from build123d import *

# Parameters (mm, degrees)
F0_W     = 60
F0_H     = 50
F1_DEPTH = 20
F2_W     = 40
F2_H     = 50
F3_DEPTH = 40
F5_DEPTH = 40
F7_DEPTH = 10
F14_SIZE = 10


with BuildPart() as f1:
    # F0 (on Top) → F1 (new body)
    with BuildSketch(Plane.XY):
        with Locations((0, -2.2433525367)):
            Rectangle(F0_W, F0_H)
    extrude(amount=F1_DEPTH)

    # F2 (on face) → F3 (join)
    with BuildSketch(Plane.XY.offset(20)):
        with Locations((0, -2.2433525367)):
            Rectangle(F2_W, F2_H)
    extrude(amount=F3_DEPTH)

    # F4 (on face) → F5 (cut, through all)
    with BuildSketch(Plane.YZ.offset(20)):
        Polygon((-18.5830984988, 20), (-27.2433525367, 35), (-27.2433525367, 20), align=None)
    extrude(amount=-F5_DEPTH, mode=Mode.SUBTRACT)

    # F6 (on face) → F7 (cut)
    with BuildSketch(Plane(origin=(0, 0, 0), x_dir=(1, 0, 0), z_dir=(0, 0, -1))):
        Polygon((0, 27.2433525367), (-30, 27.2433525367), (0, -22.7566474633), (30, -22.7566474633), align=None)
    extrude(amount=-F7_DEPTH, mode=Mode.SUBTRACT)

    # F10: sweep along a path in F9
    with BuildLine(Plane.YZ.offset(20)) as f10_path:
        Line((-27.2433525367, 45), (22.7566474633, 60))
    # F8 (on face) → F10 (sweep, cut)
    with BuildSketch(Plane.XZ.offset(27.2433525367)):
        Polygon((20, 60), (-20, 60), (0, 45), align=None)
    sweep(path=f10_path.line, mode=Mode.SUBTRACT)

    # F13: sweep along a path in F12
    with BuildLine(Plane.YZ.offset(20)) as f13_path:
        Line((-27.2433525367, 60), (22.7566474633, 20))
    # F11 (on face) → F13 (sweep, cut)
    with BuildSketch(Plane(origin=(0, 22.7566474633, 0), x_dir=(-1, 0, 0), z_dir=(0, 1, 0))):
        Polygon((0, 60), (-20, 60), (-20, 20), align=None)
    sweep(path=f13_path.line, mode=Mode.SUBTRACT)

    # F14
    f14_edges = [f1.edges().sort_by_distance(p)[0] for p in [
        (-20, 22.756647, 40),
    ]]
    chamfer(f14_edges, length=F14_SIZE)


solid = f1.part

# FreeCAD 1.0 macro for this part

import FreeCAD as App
import Part
import Sketcher
Q = App.Units.Quantity


def edges_at(feature, points):
    """Names of the edges that pass closest to the given points."""
    edges = feature.Shape.Edges
    near = lambda p: min(range(len(edges)), key=lambda i: edges[i].distToShape(Part.Vertex(*p))[0])
    return sorted({f"Edge{near(p) + 1}" for p in points})


def add_polygon(sketch, points):
    """Adds a closed chain of lines whose ends are joined by coincident constraints."""
    first, n = sketch.GeometryCount, len(points)
    for a, b in zip(points, points[1:] + points[:1]):
        sketch.addGeometry(Part.LineSegment(App.Vector(*a, 0), App.Vector(*b, 0)), False)
    for i in range(n):
        sketch.addConstraint(Sketcher.Constraint("Coincident", first + i, 2, first + (i + 1) % n, 1))

doc = App.newDocument("Part")
body = doc.addObject("PartDesign::Body", "Body")

sketch1 = body.newObject("Sketcher::SketchObject", "Sketch")
sketch1.AttachmentSupport = (doc.getObject("XY_Plane"), [""])
sketch1.MapMode = "FlatFace"
add_polygon(sketch1, [(-30, 22.756647), (-30, -27.243353), (30, -27.243353), (30, 22.756647)])
sketch1.addConstraint(Sketcher.Constraint("Vertical", 0))
sketch1.addConstraint(Sketcher.Constraint("Horizontal", 1))
sketch1.addConstraint(Sketcher.Constraint("Vertical", 2))
sketch1.addConstraint(Sketcher.Constraint("Horizontal", 3))
sketch1.addConstraint(Sketcher.Constraint("DistanceX", 1, 1, 1, 2, 60.0))
sketch1.addConstraint(Sketcher.Constraint("DistanceY", 0, 2, 0, 1, 50.0))
sketch1.addConstraint(Sketcher.Constraint("DistanceX", 0, 2, -1, 1, 30.0))
sketch1.addConstraint(Sketcher.Constraint("DistanceY", 0, 2, -1, 1, 27.243353))
pad1 = body.newObject("PartDesign::Pad", "Pad")
pad1.Profile = sketch1
pad1.Length = 20

sketch2 = body.newObject("Sketcher::SketchObject", "Sketch001")
sketch2.AttachmentSupport = (doc.getObject("XY_Plane"), [""])
sketch2.MapMode = "FlatFace"
sketch2.AttachmentOffset = App.Placement(App.Vector(0, 0, 20), App.Rotation())
add_polygon(sketch2, [(-20, 22.756647), (-20, -27.243353), (20, -27.243353), (20, 22.756647)])
sketch2.addConstraint(Sketcher.Constraint("Vertical", 0))
sketch2.addConstraint(Sketcher.Constraint("Horizontal", 1))
sketch2.addConstraint(Sketcher.Constraint("Vertical", 2))
sketch2.addConstraint(Sketcher.Constraint("Horizontal", 3))
sketch2.addConstraint(Sketcher.Constraint("DistanceX", 1, 1, 1, 2, 40.0))
sketch2.addConstraint(Sketcher.Constraint("DistanceY", 0, 2, 0, 1, 50.0))
sketch2.addConstraint(Sketcher.Constraint("DistanceX", 0, 2, -1, 1, 20.0))
sketch2.addConstraint(Sketcher.Constraint("DistanceY", 0, 2, -1, 1, 27.243353))
pad2 = body.newObject("PartDesign::Pad", "Pad001")
pad2.Profile = sketch2
pad2.Length = 40

sketch3 = body.newObject("Sketcher::SketchObject", "Sketch002")
sketch3.AttachmentSupport = (doc.getObject("YZ_Plane"), [""])
sketch3.MapMode = "FlatFace"
sketch3.AttachmentOffset = App.Placement(App.Vector(0, 0, 20), App.Rotation())
add_polygon(sketch3, [(-18.583098, 20), (-27.243353, 35), (-27.243353, 20)])
sketch3.addConstraint(Sketcher.Constraint("Vertical", 1))
sketch3.addConstraint(Sketcher.Constraint("Horizontal", 2))
sketch3.addConstraint(Sketcher.Constraint("DistanceY", 1, 2, 1, 1, 15.0))
sketch3.addConstraint(Sketcher.Constraint("Angle", 0, Q("120 deg")))
sketch3.addConstraint(Sketcher.Constraint("DistanceY", -1, 1, 0, 2, 35.0))
sketch3.addConstraint(Sketcher.Constraint("DistanceX", 2, 2, -1, 1, 18.583098))
pocket1 = body.newObject("PartDesign::Pocket", "Pocket")
pocket1.Profile = sketch3
pocket1.Type = "ThroughAll"

sketch4 = body.newObject("Sketcher::SketchObject", "Sketch003")
sketch4.AttachmentSupport = (doc.getObject("XY_Plane"), [""])
sketch4.MapMode = "FlatFace"
add_polygon(sketch4, [(0, -27.243353), (-30, -27.243353), (0, 22.756647), (30, 22.756647)])
sketch4.addConstraint(Sketcher.Constraint("Horizontal", 0))
sketch4.addConstraint(Sketcher.Constraint("Horizontal", 2))
sketch4.addConstraint(Sketcher.Constraint("PointOnObject", 1, 2, -2))
sketch4.addConstraint(Sketcher.Constraint("PointOnObject", 3, 2, -2))
sketch4.addConstraint(Sketcher.Constraint("Parallel", 1, 3))
sketch4.addConstraint(Sketcher.Constraint("DistanceX", 0, 2, 0, 1, 30.0))
sketch4.addConstraint(Sketcher.Constraint("DistanceY", 0, 2, 1, 2, 50.0))
sketch4.addConstraint(Sketcher.Constraint("DistanceY", 0, 2, -1, 1, 27.243353))
pocket2 = body.newObject("PartDesign::Pocket", "Pocket001")
pocket2.Profile = sketch4
pocket2.Length = 10
pocket2.Reversed = True

sketch5 = body.newObject("Sketcher::SketchObject", "Sketch004")
sketch5.AttachmentSupport = (doc.getObject("XZ_Plane"), [""])
sketch5.MapMode = "FlatFace"
sketch5.AttachmentOffset = App.Placement(App.Vector(0, 0, 27.243353), App.Rotation())
add_polygon(sketch5, [(20, 60), (-20, 60), (0, 45)])
sketch5.addConstraint(Sketcher.Constraint("Horizontal", 0))
sketch5.addConstraint(Sketcher.Constraint("PointOnObject", 1, 2, -2))
sketch5.addConstraint(Sketcher.Constraint("Equal", 1, 2))
sketch5.addConstraint(Sketcher.Constraint("DistanceX", 0, 2, 0, 1, 40.0))
sketch5.addConstraint(Sketcher.Constraint("Distance", 1, 25.0))
sketch5.addConstraint(Sketcher.Constraint("DistanceY", -1, 1, 0, 2, 60.0))

sketch6 = body.newObject("Sketcher::SketchObject", "Sketch005")
sketch6.Placement = App.Placement(App.Vector(0, -14.634772, 48.782574), App.Rotation(App.Vector(0, 0.957826285, 0.287347886), App.Vector(1, 0, 0), App.Vector(0, 0.287347886, -0.957826285), "ZXY"))
sketch6.addGeometry(Part.LineSegment(App.Vector(-13.163744, 20, 0), App.Vector(39.037788, 20, 0)), False)
sketch6.addConstraint(Sketcher.Constraint("Horizontal", 0))
sketch6.addConstraint(Sketcher.Constraint("DistanceY", -1, 1, 0, 1, 20.0))
sketch6.addConstraint(Sketcher.Constraint("DistanceX", 0, 1, 0, 2, 52.201533))
sketch6.addConstraint(Sketcher.Constraint("DistanceX", -1, 1, 0, 2, 39.037788))
doc.recompute()

subtractivepipe = body.newObject("PartDesign::SubtractivePipe", "SubtractivePipe")
subtractivepipe.Profile = sketch5
subtractivepipe.Spine = (sketch6, ["Edge1"])

sketch7 = body.newObject("Sketcher::SketchObject", "Sketch006")
sketch7.AttachmentSupport = (doc.getObject("XZ_Plane"), [""])
sketch7.MapMode = "FlatFace"
sketch7.AttachmentOffset = App.Placement(App.Vector(0, 0, -22.756647), App.Rotation())
add_polygon(sketch7, [(0, 60), (20, 60), (20, 20)])
sketch7.addConstraint(Sketcher.Constraint("Horizontal", 0))
sketch7.addConstraint(Sketcher.Constraint("Vertical", 1))
sketch7.addConstraint(Sketcher.Constraint("PointOnObject", 2, 2, -2))
sketch7.addConstraint(Sketcher.Constraint("DistanceX", 0, 1, 0, 2, 20.0))
sketch7.addConstraint(Sketcher.Constraint("DistanceY", 1, 2, 1, 1, 40.0))
sketch7.addConstraint(Sketcher.Constraint("DistanceY", -1, 1, 0, 2, 60.0))

sketch8 = body.newObject("Sketcher::SketchObject", "Sketch007")
sketch8.Placement = App.Placement(App.Vector(0, 18.63674, 23.295926), App.Rotation(App.Vector(0, -0.780868809, 0.624695048), App.Vector(1, 0, 0), App.Vector(0, 0.624695048, 0.780868809), "ZXY"))
sketch8.addGeometry(Part.LineSegment(App.Vector(58.755187, 20, 0), App.Vector(-5.276055, 20, 0)), False)
sketch8.addConstraint(Sketcher.Constraint("Horizontal", 0))
sketch8.addConstraint(Sketcher.Constraint("DistanceY", -1, 1, 0, 1, 20.0))
sketch8.addConstraint(Sketcher.Constraint("DistanceX", 0, 2, 0, 1, 64.031242))
sketch8.addConstraint(Sketcher.Constraint("DistanceX", -1, 1, 0, 1, 58.755187))
doc.recompute()

subtractivepipe2 = body.newObject("PartDesign::SubtractivePipe", "SubtractivePipe001")
subtractivepipe2.Profile = sketch7
subtractivepipe2.Spine = (sketch8, ["Edge1"])
doc.recompute()

chamfer = body.newObject("PartDesign::Chamfer", "Chamfer")
chamfer.Base = (subtractivepipe2, edges_at(subtractivepipe2, [(-20, 22.757, 40)]))
chamfer.Size = 10

doc.recompute()
